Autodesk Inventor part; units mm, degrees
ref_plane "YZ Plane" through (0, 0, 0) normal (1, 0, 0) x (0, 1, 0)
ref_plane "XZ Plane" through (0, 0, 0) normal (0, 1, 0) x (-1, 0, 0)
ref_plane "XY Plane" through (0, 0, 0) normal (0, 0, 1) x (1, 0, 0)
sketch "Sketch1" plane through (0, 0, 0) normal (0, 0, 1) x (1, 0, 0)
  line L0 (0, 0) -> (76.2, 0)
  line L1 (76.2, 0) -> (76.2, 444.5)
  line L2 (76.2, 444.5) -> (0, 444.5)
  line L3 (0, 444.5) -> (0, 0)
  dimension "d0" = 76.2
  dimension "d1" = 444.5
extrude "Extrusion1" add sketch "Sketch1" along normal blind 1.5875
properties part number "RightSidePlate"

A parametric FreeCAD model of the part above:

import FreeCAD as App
import Part
import Sketcher

V = App.Vector
Q = App.Units.Quantity

doc = App.newDocument("Part")
body = doc.addObject("PartDesign::Body", "Body")

sketch1 = body.newObject("Sketcher::SketchObject", "Sketch")
sketch1.AttachmentSupport = (doc.getObject("XY_Plane"), [""])
sketch1.MapMode = "FlatFace"
sketch1.addGeometry(Part.LineSegment(V(0, 444, 0), V(0, 0, 0)), False)
sketch1.addGeometry(Part.LineSegment(V(0, 0, 0), V(76, 0, 0)), False)
sketch1.addGeometry(Part.LineSegment(V(76, 0, 0), V(76, 444, 0)), False)
sketch1.addGeometry(Part.LineSegment(V(76, 444, 0), V(0, 444, 0)), False)
sketch1.addConstraint(Sketcher.Constraint("Coincident", 0, 2, 1, 1))
sketch1.addConstraint(Sketcher.Constraint("Coincident", 1, 2, 2, 1))
sketch1.addConstraint(Sketcher.Constraint("Coincident", 2, 2, 3, 1))
sketch1.addConstraint(Sketcher.Constraint("Coincident", 3, 2, 0, 1))
sketch1.addConstraint(Sketcher.Constraint("Vertical", 0))
sketch1.addConstraint(Sketcher.Constraint("Horizontal", 1))
sketch1.addConstraint(Sketcher.Constraint("Vertical", 2))
sketch1.addConstraint(Sketcher.Constraint("Horizontal", 3))
sketch1.addConstraint(Sketcher.Constraint("Coincident", 0, 2, -1, 1))
sketch1.addConstraint(Sketcher.Constraint("DistanceX", 1, 1, 1, 2, Q("3 in")))
sketch1.addConstraint(Sketcher.Constraint("DistanceY", 0, 2, 0, 1, Q("17.5 in")))
pad1 = body.newObject("PartDesign::Pad", "Pad")
pad1.Profile = sketch1
pad1.Length = Q("0.0625 in")

doc.recompute()
